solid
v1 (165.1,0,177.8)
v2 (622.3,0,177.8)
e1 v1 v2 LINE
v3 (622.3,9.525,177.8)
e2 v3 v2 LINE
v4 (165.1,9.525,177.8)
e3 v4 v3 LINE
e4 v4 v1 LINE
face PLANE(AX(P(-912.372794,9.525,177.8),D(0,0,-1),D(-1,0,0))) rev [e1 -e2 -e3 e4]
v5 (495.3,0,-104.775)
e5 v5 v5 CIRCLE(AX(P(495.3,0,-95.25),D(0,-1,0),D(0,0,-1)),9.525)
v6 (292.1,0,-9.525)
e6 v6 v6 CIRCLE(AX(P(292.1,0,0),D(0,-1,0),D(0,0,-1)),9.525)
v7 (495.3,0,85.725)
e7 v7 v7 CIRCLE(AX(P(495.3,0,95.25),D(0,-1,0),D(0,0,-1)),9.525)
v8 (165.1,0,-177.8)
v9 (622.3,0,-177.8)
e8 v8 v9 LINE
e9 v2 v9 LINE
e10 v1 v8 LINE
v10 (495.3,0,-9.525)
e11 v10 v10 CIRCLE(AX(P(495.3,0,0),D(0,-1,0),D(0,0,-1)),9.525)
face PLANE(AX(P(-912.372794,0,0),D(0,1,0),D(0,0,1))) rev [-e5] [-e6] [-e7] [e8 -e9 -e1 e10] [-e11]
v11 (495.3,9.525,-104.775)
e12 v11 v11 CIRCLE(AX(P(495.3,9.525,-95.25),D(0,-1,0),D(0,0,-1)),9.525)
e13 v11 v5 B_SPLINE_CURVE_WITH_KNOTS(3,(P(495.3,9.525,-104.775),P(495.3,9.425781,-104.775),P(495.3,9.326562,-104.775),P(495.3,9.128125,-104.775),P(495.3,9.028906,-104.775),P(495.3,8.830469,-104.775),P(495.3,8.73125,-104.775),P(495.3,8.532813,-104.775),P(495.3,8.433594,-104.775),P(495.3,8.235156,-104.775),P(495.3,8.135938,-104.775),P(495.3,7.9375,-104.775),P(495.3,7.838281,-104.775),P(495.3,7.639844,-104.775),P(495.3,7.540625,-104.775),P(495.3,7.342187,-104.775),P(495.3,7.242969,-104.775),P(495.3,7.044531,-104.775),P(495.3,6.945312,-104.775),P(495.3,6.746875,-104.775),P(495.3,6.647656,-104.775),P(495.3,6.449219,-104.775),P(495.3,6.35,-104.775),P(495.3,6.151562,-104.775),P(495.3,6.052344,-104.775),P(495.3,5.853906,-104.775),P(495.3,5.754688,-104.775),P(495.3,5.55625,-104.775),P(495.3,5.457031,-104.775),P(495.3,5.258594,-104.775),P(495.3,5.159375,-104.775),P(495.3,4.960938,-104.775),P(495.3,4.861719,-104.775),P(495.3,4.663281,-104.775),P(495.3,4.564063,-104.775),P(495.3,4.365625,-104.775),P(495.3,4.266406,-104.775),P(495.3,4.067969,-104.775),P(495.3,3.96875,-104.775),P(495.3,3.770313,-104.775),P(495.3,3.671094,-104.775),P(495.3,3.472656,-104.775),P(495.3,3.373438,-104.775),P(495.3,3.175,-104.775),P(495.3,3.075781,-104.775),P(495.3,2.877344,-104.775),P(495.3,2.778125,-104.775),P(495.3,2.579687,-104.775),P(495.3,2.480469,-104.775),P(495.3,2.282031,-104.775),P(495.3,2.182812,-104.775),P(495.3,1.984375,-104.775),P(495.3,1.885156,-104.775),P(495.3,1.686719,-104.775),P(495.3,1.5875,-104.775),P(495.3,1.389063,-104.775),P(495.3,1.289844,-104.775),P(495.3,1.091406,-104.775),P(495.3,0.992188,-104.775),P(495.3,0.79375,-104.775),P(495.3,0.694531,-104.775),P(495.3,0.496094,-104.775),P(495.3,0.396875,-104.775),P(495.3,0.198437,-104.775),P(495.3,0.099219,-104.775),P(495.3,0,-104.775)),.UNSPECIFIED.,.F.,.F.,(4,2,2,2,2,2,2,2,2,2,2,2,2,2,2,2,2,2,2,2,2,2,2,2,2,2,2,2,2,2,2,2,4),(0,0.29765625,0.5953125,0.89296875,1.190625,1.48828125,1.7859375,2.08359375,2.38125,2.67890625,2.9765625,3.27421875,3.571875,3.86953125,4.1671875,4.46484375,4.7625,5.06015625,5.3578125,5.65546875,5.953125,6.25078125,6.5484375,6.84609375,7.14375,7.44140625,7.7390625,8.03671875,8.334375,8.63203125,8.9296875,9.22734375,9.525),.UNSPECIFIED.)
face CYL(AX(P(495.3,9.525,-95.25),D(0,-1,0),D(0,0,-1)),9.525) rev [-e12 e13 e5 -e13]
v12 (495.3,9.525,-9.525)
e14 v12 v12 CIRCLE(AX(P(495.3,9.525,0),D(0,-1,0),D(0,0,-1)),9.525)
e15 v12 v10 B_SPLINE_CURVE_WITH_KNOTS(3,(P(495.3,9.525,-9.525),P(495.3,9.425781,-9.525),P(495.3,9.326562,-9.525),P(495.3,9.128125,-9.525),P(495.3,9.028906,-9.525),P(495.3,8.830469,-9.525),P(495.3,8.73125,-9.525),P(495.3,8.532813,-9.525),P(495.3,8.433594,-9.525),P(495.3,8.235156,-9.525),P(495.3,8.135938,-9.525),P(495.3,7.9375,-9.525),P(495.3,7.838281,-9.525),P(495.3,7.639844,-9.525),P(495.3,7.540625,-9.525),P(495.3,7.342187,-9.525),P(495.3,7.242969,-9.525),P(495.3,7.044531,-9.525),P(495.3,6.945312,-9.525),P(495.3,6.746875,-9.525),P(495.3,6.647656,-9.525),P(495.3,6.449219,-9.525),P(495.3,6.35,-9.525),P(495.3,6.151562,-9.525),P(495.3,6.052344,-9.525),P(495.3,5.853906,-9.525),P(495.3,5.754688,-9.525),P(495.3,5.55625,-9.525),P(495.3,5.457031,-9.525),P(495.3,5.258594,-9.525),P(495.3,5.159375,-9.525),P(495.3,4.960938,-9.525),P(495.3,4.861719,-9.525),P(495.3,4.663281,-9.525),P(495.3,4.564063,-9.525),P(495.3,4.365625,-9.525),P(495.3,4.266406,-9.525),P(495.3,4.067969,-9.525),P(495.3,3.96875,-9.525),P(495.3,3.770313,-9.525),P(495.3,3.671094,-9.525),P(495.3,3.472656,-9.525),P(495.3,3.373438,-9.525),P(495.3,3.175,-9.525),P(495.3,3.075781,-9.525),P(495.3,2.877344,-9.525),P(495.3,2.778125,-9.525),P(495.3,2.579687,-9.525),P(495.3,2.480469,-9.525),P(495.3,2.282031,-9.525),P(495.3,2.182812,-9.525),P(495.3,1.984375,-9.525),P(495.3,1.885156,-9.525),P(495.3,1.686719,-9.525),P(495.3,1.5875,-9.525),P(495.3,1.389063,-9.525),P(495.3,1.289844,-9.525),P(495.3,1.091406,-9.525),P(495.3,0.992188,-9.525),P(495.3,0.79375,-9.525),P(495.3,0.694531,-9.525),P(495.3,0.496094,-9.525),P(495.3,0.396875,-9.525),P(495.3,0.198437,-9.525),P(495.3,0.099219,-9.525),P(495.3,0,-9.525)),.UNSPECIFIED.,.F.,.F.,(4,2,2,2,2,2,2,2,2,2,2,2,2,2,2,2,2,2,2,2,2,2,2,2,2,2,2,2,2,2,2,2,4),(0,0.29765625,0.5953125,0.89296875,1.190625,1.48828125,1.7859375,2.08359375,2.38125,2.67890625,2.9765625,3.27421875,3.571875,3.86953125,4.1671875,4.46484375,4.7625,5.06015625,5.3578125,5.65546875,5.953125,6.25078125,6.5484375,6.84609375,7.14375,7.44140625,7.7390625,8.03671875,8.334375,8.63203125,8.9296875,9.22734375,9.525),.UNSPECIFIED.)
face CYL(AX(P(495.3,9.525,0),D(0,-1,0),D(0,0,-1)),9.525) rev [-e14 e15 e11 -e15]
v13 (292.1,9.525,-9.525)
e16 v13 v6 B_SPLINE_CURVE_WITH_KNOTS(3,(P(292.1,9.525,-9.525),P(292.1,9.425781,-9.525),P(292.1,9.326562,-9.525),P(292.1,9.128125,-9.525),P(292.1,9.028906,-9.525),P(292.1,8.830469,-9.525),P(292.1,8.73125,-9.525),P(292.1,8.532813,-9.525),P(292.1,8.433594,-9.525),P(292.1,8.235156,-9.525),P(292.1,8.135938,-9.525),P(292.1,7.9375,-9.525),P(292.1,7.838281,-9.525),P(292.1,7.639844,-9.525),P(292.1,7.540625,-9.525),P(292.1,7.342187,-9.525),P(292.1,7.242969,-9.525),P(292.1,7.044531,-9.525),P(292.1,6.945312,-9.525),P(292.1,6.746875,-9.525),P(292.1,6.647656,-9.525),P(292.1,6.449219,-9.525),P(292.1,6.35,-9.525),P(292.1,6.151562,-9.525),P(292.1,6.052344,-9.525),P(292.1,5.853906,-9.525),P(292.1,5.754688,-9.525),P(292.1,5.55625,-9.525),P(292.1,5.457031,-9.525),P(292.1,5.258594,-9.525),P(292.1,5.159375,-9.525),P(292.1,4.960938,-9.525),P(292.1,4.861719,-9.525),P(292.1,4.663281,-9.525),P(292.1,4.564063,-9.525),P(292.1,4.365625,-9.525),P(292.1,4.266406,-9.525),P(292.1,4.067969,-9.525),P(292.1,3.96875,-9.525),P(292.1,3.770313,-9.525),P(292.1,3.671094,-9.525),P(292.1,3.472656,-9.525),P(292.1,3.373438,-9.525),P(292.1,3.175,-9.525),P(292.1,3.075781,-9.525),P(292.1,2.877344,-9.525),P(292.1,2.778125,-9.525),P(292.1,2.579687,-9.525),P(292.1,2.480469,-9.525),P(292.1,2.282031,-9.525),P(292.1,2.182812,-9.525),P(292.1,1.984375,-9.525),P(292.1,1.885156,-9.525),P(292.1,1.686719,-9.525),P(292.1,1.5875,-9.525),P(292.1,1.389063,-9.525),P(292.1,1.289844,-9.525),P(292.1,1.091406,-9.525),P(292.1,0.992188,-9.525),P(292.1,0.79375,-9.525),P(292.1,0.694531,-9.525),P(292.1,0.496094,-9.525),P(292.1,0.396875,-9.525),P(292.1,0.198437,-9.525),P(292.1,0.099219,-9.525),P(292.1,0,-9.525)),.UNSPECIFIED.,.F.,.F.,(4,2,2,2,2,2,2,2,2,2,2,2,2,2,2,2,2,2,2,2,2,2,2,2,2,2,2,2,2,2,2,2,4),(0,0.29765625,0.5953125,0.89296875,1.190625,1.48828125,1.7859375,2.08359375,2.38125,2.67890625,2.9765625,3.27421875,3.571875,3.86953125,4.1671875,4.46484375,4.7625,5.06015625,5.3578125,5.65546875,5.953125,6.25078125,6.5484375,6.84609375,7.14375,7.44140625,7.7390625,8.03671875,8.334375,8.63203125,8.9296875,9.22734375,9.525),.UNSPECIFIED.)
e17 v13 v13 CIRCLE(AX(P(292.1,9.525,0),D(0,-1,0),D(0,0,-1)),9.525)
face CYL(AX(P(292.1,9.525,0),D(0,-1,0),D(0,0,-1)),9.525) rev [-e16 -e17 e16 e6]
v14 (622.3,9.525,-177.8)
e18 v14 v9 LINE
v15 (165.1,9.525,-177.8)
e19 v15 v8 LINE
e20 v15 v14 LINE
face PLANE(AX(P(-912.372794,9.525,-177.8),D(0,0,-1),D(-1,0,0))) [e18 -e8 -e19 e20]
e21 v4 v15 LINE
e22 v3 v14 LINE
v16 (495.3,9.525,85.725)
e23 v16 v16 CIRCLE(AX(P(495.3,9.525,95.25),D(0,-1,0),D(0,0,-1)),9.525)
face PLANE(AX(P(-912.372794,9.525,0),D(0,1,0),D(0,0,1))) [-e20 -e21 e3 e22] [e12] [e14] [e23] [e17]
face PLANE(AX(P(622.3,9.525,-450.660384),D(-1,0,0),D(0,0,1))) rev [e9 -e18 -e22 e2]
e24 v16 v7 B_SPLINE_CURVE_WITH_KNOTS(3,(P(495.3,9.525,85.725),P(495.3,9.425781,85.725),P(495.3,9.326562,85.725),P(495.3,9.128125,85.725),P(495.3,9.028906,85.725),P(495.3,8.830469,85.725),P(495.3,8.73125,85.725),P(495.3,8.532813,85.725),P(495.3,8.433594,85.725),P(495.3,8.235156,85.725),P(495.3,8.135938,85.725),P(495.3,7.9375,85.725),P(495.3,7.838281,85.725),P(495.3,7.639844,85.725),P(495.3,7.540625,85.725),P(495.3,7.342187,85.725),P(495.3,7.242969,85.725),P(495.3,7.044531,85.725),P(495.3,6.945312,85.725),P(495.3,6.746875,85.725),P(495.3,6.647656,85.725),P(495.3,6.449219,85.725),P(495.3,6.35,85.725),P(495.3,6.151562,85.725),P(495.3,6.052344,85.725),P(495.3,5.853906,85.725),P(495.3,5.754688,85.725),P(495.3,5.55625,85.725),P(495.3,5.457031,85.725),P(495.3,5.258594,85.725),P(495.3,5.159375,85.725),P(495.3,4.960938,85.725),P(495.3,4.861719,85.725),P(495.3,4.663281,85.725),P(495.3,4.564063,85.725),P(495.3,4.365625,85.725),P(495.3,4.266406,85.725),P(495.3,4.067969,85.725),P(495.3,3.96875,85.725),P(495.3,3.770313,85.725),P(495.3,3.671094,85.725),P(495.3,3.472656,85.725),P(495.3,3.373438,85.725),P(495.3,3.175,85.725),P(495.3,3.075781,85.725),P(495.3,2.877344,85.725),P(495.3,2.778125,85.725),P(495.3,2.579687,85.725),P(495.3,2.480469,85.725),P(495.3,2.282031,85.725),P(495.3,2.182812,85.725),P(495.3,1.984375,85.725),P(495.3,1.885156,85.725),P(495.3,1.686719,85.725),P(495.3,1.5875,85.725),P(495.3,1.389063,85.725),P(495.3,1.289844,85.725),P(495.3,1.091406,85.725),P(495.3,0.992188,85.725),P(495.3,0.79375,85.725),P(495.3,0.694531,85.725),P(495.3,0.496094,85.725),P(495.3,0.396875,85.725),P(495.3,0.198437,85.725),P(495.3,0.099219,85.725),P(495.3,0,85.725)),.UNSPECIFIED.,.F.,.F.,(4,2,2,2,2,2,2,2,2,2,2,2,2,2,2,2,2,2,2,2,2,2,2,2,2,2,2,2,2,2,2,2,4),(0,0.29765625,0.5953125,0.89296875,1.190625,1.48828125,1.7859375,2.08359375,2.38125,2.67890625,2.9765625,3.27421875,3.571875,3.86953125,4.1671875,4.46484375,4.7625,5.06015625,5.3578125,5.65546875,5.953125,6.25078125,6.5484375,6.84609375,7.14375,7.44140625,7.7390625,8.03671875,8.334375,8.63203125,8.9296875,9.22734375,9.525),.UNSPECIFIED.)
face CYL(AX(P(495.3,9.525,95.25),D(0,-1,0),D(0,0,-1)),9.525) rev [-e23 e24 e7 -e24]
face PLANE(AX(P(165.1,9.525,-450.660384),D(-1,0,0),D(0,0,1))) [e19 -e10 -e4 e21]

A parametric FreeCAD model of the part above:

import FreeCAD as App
import Part
import Sketcher
from FreeCAD import Vector
Q = App.Units.Quantity

doc = App.newDocument("Part")
body = doc.addObject("PartDesign::Body", "Body")

# Sketch on XZ plane
sketch1 = doc.addObject("Sketcher::SketchObject", "Sketch")
body.addObject(sketch1)
sketch1.AttachmentSupport = (doc.XZ_Plane, [""])
sketch1.MapMode = "FlatFace"
sketch1.addGeometry(Part.LineSegment(Vector(462, -18, 0), Vector(559, -99, 0)), False)
sketch1.addGeometry(Part.LineSegment(Vector(559, -99, 0), Vector(559, -178, 0)), False)
sketch1.addGeometry(Part.LineSegment(Vector(559, -178, 0), Vector(229, -178, 0)), False)
sketch1.addGeometry(Part.LineSegment(Vector(229, -178, 0), Vector(229, 178, 0)), False)
sketch1.addGeometry(Part.LineSegment(Vector(229, 178, 0), Vector(462, -18, 0)), False)
sketch1.addConstraint(Sketcher.Constraint("Coincident", 0, 2, 1, 1))
sketch1.addConstraint(Sketcher.Constraint("Coincident", 1, 2, 2, 1))
sketch1.addConstraint(Sketcher.Constraint("Coincident", 2, 2, 3, 1))
sketch1.addConstraint(Sketcher.Constraint("Coincident", 3, 2, 4, 1))
sketch1.addConstraint(Sketcher.Constraint("Coincident", 4, 2, 0, 1))
sketch1.addConstraint(Sketcher.Constraint("Vertical", 1))
sketch1.addConstraint(Sketcher.Constraint("Horizontal", 2))
sketch1.addConstraint(Sketcher.Constraint("Vertical", 3))
sketch1.addConstraint(Sketcher.Constraint("Parallel", 0, 4))
sketch1.addConstraint(Sketcher.Constraint("DistanceX", 2, 2, 2, 1, Q("13 in")))
sketch1.addConstraint(Sketcher.Constraint("DistanceY", 3, 1, 3, 2, Q("14 in")))
sketch1.addConstraint(Sketcher.Constraint("Distance", 0, Q("5 in")))
sketch1.addConstraint(Sketcher.Constraint("DistanceX", -1, 1, 0, 2, Q("22 in")))
sketch1.addConstraint(Sketcher.Constraint("DistanceY", 1, 2, -1, 1, Q("7 in")))
sketch1.addConstraint(Sketcher.Constraint("Angle", 0, Q("-40 deg")))
pad1 = doc.addObject("PartDesign::Pad", "Pad")
body.addObject(pad1)
pad1.Profile = sketch1
pad1.Length = Q("0.375 in")
pad1.Reversed = True

# Sketch on XZ plane
sketch2 = doc.addObject("Sketcher::SketchObject", "Sketch001")
body.addObject(sketch2)
sketch2.AttachmentSupport = (doc.XZ_Plane, [""])
sketch2.MapMode = "FlatFace"
sketch2.addGeometry(Part.LineSegment(Vector(559, 178, 0), Vector(559, -99, 0)), False)
sketch2.addGeometry(Part.LineSegment(Vector(559, -99, 0), Vector(462, -18, 0)), False)
sketch2.addGeometry(Part.LineSegment(Vector(462, -18, 0), Vector(229, 178, 0)), False)
sketch2.addGeometry(Part.LineSegment(Vector(229, 178, 0), Vector(559, 178, 0)), False)
sketch2.addConstraint(Sketcher.Constraint("Coincident", 0, 2, 1, 1))
sketch2.addConstraint(Sketcher.Constraint("Coincident", 1, 2, 2, 1))
sketch2.addConstraint(Sketcher.Constraint("Coincident", 2, 2, 3, 1))
sketch2.addConstraint(Sketcher.Constraint("Coincident", 3, 2, 0, 1))
sketch2.addConstraint(Sketcher.Constraint("Vertical", 0))
sketch2.addConstraint(Sketcher.Constraint("Horizontal", 3))
sketch2.addConstraint(Sketcher.Constraint("Parallel", 1, 2))
sketch2.addConstraint(Sketcher.Constraint("DistanceX", 3, 1, 3, 2, Q("13 in")))
sketch2.addConstraint(Sketcher.Constraint("Distance", 1, Q("5 in")))
sketch2.addConstraint(Sketcher.Constraint("DistanceX", -1, 1, 0, 2, Q("22 in")))
sketch2.addConstraint(Sketcher.Constraint("DistanceY", -1, 1, 2, 2, Q("7 in")))
sketch2.addConstraint(Sketcher.Constraint("Angle", 1, Q("140 deg")))
pad2 = doc.addObject("PartDesign::Pad", "Pad001")
body.addObject(pad2)
pad2.Profile = sketch2
pad2.Length = Q("0.375 in")
pad2.Reversed = True

# Sketch on XZ plane
sketch3 = doc.addObject("Sketcher::SketchObject", "Sketch002")
body.addObject(sketch3)
sketch3.AttachmentSupport = (doc.XZ_Plane, [""])
sketch3.MapMode = "FlatFace"
sketch3.addGeometry(Part.LineSegment(Vector(165, 178, 0), Vector(165, -178, 0)), False)
sketch3.addGeometry(Part.LineSegment(Vector(165, -178, 0), Vector(229, -178, 0)), False)
sketch3.addGeometry(Part.LineSegment(Vector(229, -178, 0), Vector(229, 178, 0)), False)
sketch3.addGeometry(Part.LineSegment(Vector(229, 178, 0), Vector(165, 178, 0)), False)
sketch3.addGeometry(Part.LineSegment(Vector(559, 178, 0), Vector(559, -178, 0)), False)
sketch3.addGeometry(Part.LineSegment(Vector(559, -178, 0), Vector(622, -178, 0)), False)
sketch3.addGeometry(Part.LineSegment(Vector(622, -178, 0), Vector(622, 178, 0)), False)
sketch3.addGeometry(Part.LineSegment(Vector(622, 178, 0), Vector(559, 178, 0)), False)
sketch3.addConstraint(Sketcher.Constraint("Coincident", 0, 2, 1, 1))
sketch3.addConstraint(Sketcher.Constraint("Coincident", 1, 2, 2, 1))
sketch3.addConstraint(Sketcher.Constraint("Coincident", 2, 2, 3, 1))
sketch3.addConstraint(Sketcher.Constraint("Coincident", 3, 2, 0, 1))
sketch3.addConstraint(Sketcher.Constraint("Coincident", 4, 2, 5, 1))
sketch3.addConstraint(Sketcher.Constraint("Coincident", 5, 2, 6, 1))
sketch3.addConstraint(Sketcher.Constraint("Coincident", 6, 2, 7, 1))
sketch3.addConstraint(Sketcher.Constraint("Coincident", 7, 2, 4, 1))
sketch3.addConstraint(Sketcher.Constraint("Vertical", 0))
sketch3.addConstraint(Sketcher.Constraint("Horizontal", 1))
sketch3.addConstraint(Sketcher.Constraint("Vertical", 2))
sketch3.addConstraint(Sketcher.Constraint("Horizontal", 3))
sketch3.addConstraint(Sketcher.Constraint("Vertical", 4))
sketch3.addConstraint(Sketcher.Constraint("Horizontal", 5))
sketch3.addConstraint(Sketcher.Constraint("Vertical", 6))
sketch3.addConstraint(Sketcher.Constraint("Horizontal", 7))
sketch3.addConstraint(Sketcher.Constraint("Horizontal", 1, 2, 4, 2))
sketch3.addConstraint(Sketcher.Constraint("Horizontal", 3, 2, 6, 2))
sketch3.addConstraint(Sketcher.Constraint("Equal", 3, 5))
sketch3.addConstraint(Sketcher.Constraint("DistanceY", 0, 2, 0, 1, Q("14 in")))
sketch3.addConstraint(Sketcher.Constraint("DistanceX", 1, 1, 1, 2, Q("2.5 in")))
sketch3.addConstraint(Sketcher.Constraint("DistanceY", 0, 2, -1, 1, Q("7 in")))
sketch3.addConstraint(Sketcher.Constraint("DistanceX", -1, 1, 1, 2, Q("9 in")))
sketch3.addConstraint(Sketcher.Constraint("DistanceX", -1, 1, 4, 2, Q("22 in")))
pad3 = doc.addObject("PartDesign::Pad", "Pad002")
body.addObject(pad3)
pad3.Profile = sketch3
pad3.Length = Q("0.375 in")
pad3.Reversed = True

# Sketch on XZ plane
sketch4 = doc.addObject("Sketcher::SketchObject", "Sketch003")
body.addObject(sketch4)
sketch4.AttachmentSupport = (doc.XZ_Plane, [""])
sketch4.MapMode = "FlatFace"
sketch4.addGeometry(Part.Circle(Vector(495, 0, 0), Vector(0, 0, 1), 10), False)
sketch4.addGeometry(Part.Circle(Vector(292, 0, 0), Vector(0, 0, 1), 10), False)
sketch4.addGeometry(Part.Circle(Vector(495, -95, 0), Vector(0, 0, 1), 10), False)
sketch4.addGeometry(Part.Circle(Vector(495, 95, 0), Vector(0, 0, 1), 10), False)
sketch4.addConstraint(Sketcher.Constraint("Equal", 0, 1))
sketch4.addConstraint(Sketcher.Constraint("Equal", 1, 2))
sketch4.addConstraint(Sketcher.Constraint("Equal", 2, 3))
sketch4.addConstraint(Sketcher.Constraint("Symmetric", 2, 3, 3, 3, -1))
sketch4.addConstraint(Sketcher.Constraint("PointOnObject", 0, 3, -1))
sketch4.addConstraint(Sketcher.Constraint("PointOnObject", 1, 3, -1))
sketch4.addConstraint(Sketcher.Constraint("Vertical", 0, 3, 2, 3))
sketch4.addConstraint(Sketcher.Constraint("Diameter", 0, Q("0.75 in")))
sketch4.addConstraint(Sketcher.Constraint("DistanceX", 1, 3, 0, 3, Q("8 in")))
sketch4.addConstraint(Sketcher.Constraint("DistanceX", -1, 1, 0, 3, Q("19.5 in")))
sketch4.addConstraint(Sketcher.Constraint("DistanceY", 2, 3, 3, 3, Q("7.5 in")))
pocket1 = doc.addObject("PartDesign::Pocket", "Pocket")
body.addObject(pocket1)
pocket1.Profile = sketch4
pocket1.Type = "ThroughAll"

doc.recompute()
